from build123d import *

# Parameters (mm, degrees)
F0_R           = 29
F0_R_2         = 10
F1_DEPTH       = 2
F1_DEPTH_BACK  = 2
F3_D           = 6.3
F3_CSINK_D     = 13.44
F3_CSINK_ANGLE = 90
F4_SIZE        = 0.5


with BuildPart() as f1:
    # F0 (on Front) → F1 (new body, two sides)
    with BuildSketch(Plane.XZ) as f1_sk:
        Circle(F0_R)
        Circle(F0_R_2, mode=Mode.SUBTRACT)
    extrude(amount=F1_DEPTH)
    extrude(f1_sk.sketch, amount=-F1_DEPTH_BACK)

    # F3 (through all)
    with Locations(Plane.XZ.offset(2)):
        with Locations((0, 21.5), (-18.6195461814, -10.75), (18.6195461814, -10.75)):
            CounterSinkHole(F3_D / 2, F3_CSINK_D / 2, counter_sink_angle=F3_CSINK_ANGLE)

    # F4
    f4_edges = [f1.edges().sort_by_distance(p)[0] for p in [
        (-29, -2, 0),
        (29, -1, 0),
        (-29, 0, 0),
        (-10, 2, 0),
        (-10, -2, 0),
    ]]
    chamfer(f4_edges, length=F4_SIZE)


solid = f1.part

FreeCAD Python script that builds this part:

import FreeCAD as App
import Part
import Sketcher


def edges_at(feature, points):
    """Names of the edges that pass closest to the given points."""
    edges = feature.Shape.Edges
    near = lambda p: min(range(len(edges)), key=lambda i: edges[i].distToShape(Part.Vertex(*p))[0])
    return sorted({f"Edge{near(p) + 1}" for p in points})

doc = App.newDocument("Part")
body = doc.addObject("PartDesign::Body", "Body")

# Sketch on XZ plane
sketch1 = body.newObject("Sketcher::SketchObject", "Sketch")
sketch1.AttachmentSupport = (doc.getObject("XZ_Plane"), [""])
sketch1.MapMode = "FlatFace"
sketch1.addGeometry([
    Part.Circle(App.Vector(0, 0, 0), App.Vector(0, 0, 1), 29),
    Part.Circle(App.Vector(0, 0, 0), App.Vector(0, 0, 1), 10),
], False)
sketch1.addConstraint([
    Sketcher.Constraint("Coincident", 0, 3, -1, 1),
    Sketcher.Constraint("Coincident", 1, 3, -1, 1),
    Sketcher.Constraint("Diameter", 0, 58.0),
    Sketcher.Constraint("Diameter", 1, 20.0),
])
pad1 = body.newObject("PartDesign::Pad", "Pad")
pad1.Profile = sketch1
pad1.Type = "TwoLengths"
pad1.Length = 2
pad1.Length2 = 2

# Sketch on XZ plane
sketch2 = body.newObject("Sketcher::SketchObject", "Sketch001")
sketch2.AttachmentSupport = (doc.getObject("XZ_Plane"), [""])
sketch2.MapMode = "FlatFace"
sketch2.AttachmentOffset = App.Placement(App.Vector(0, 0, 2), App.Rotation())
sketch2.addGeometry([
    Part.Circle(App.Vector(0, 21.5, 0), App.Vector(0, 0, 1), 3.1),
    Part.Circle(App.Vector(-18.6, -10.8, 0), App.Vector(0, 0, 1), 3.1),
    Part.Circle(App.Vector(18.6, -10.8, 0), App.Vector(0, 0, 1), 3.1),
], False)
sketch2.addConstraint([
    Sketcher.Constraint("Equal", 0, 1),
    Sketcher.Constraint("Equal", 1, 2),
    Sketcher.Constraint("Symmetric", 1, 3, 2, 3, -2),
    Sketcher.Constraint("PointOnObject", 0, 3, -2),
    Sketcher.Constraint("Diameter", 0, 6.3),
    Sketcher.Constraint("DistanceY", -1, 1, 0, 3, 21.5),
    Sketcher.Constraint("DistanceY", 1, 3, -1, 1, 10.75),
    Sketcher.Constraint("DistanceX", 1, 3, -1, 1, 18.619546),
])
doc.recompute()
hole = body.newObject("PartDesign::Hole", "Hole")
hole.Profile = sketch2
hole.ThreadType = "None"
hole.Diameter = 6.3
hole.DepthType = "ThroughAll"
hole.HoleCutType = "Countersink"
hole.HoleCutDiameter = 13.44
hole.HoleCutCountersinkAngle = 90
doc.recompute()

chamfer = body.newObject("PartDesign::Chamfer", "Chamfer")
chamfer.Base = (hole, edges_at(hole, [
    (-29, -2, 0),
    (29, 0, 0),
    (-29, 2, 0),
    (-10, 2, 0),
    (-10, -2, 0),
]))
chamfer.Size = 0.5

doc.recompute()
